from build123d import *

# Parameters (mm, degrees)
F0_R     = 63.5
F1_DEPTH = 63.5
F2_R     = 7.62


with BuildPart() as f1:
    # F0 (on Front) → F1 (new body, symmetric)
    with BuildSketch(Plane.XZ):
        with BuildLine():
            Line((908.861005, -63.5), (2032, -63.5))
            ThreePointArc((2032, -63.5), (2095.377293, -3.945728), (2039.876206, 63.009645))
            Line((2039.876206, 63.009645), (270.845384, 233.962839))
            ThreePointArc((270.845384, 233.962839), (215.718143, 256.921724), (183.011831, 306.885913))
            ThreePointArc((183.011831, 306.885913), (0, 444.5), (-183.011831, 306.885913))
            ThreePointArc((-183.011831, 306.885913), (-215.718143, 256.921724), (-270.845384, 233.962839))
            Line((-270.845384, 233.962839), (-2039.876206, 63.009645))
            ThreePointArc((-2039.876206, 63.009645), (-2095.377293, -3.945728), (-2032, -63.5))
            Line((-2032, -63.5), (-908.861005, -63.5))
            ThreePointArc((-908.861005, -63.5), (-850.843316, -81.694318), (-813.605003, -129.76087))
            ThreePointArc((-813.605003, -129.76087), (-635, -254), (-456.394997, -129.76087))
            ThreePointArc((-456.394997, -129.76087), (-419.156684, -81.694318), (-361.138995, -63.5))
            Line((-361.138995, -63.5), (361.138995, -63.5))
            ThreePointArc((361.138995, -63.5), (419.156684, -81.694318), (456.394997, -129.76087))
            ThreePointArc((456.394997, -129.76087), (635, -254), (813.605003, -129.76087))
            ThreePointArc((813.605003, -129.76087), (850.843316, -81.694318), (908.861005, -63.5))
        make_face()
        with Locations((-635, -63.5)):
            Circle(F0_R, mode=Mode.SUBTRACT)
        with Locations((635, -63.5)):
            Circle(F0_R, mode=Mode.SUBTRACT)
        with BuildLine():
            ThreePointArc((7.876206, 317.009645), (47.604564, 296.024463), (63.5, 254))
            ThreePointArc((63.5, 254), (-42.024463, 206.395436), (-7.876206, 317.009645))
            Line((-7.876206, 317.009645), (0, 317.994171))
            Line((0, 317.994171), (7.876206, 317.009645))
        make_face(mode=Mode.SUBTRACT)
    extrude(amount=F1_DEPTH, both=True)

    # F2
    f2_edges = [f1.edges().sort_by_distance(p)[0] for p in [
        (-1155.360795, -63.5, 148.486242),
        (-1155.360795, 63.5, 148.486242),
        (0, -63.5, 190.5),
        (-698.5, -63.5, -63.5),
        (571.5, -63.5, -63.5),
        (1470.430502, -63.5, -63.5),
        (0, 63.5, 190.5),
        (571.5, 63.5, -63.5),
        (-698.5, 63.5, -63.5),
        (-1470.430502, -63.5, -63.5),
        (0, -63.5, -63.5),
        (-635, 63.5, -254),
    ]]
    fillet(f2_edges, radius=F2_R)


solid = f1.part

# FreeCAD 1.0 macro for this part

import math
import FreeCAD as App
import Part
import Sketcher
from FreeCAD import Vector
Q = App.Units.Quantity


def edges_at(feature, points):
    """Names of the edges that pass closest to the given points."""
    edges = feature.Shape.Edges
    near = lambda p: min(range(len(edges)), key=lambda i: edges[i].distToShape(Part.Vertex(*p))[0])
    return sorted({f"Edge{near(p) + 1}" for p in points})

doc = App.newDocument("Part")
body = doc.addObject("PartDesign::Body", "Body")

sketch1 = body.newObject("Sketcher::SketchObject", "Sketch")
sketch1.AttachmentSupport = (doc.getObject("XZ_Plane"), [""])
sketch1.MapMode = "FlatFace"
sketch1.addGeometry([
    Part.LineSegment(Vector(908.861005, -63.5, 0), Vector(2032, -63.5, 0)),
    Part.ArcOfCircle(Part.Circle(Vector(2032, 0, 0), Vector(0, 0, 1), 63.5), math.radians(-90), math.radians(82.874984)),
    Part.LineSegment(Vector(2039.876206, 63.009645, 0), Vector(270.845384, 233.962839, 0)),
    Part.ArcOfCircle(Part.Circle(Vector(280.61814, 335.091732, 0), Vector(0, 0, 1), 101.599999), math.radians(-163.882009), math.radians(-95.519732)),
    Part.ArcOfCircle(Part.Circle(Vector(0, 254, 0), Vector(0, 0, 1), 190.5), math.radians(16.117992), math.radians(163.882008)),
    Part.ArcOfCircle(Part.Circle(Vector(-280.61814, 335.091732, 0), Vector(0, 0, 1), 101.599999), math.radians(-84.480268), math.radians(-16.117991)),
    Part.LineSegment(Vector(-270.845384, 233.962839, 0), Vector(-2039.876206, 63.009645, 0)),
    Part.ArcOfCircle(Part.Circle(Vector(-2032, 0, 0), Vector(0, 0, 1), 63.5), math.radians(97.125016), math.radians(270)),
    Part.LineSegment(Vector(-2032, -63.5, 0), Vector(-908.861005, -63.5, 0)),
    Part.ArcOfCircle(Part.Circle(Vector(-908.861005, -165.1, 0), Vector(0, 0, 1), 101.6), math.radians(20.354406), math.radians(90)),
    Part.ArcOfCircle(Part.Circle(Vector(-635, -63.5, 0), Vector(0, 0, 1), 190.5), math.radians(-159.645593), math.radians(-20.354407)),
    Part.ArcOfCircle(Part.Circle(Vector(-361.138995, -165.1, 0), Vector(0, 0, 1), 101.6), math.radians(90), math.radians(159.645594)),
    Part.LineSegment(Vector(-361.138995, -63.5, 0), Vector(361.138995, -63.5, 0)),
    Part.ArcOfCircle(Part.Circle(Vector(361.138995, -165.1, 0), Vector(0, 0, 1), 101.6), math.radians(20.354406), math.radians(90)),
    Part.ArcOfCircle(Part.Circle(Vector(635, -63.5, 0), Vector(0, 0, 1), 190.5), math.radians(-159.645593), math.radians(-20.354407)),
    Part.ArcOfCircle(Part.Circle(Vector(908.861005, -165.1, 0), Vector(0, 0, 1), 101.6), math.radians(90), math.radians(159.645594)),
    Part.Circle(Vector(-635, -63.5, 0), Vector(0, 0, 1), 63.5),
    Part.Circle(Vector(635, -63.5, 0), Vector(0, 0, 1), 63.5),
    Part.LineSegment(Vector(0, 317.994171, 0), Vector(7.876206, 317.009645, 0)),
    Part.ArcOfCircle(Part.Circle(Vector(0, 254, 0), Vector(0, 0, 1), 63.5), math.radians(0), math.radians(82.874984)),
    Part.ArcOfCircle(Part.Circle(Vector(0, 254, 0), Vector(0, 0, 1), 63.5), math.radians(97.125017), math.radians(360)),
    Part.LineSegment(Vector(-7.876206, 317.009645, 0), Vector(0, 317.994171, 0)),
], False)
sketch1.addConstraint([
    Sketcher.Constraint("Tangent", 0, 2, 1, 1),
    Sketcher.Constraint("Coincident", 1, 2, 2, 1),
    Sketcher.Constraint("Tangent", 2, 2, 3, 2),
    Sketcher.Constraint("Tangent", 3, 1, 4, 1),
    Sketcher.Constraint("Tangent", 4, 2, 5, 2),
    Sketcher.Constraint("Tangent", 5, 1, 6, 1),
    Sketcher.Constraint("Coincident", 6, 2, 7, 1),
    Sketcher.Constraint("Tangent", 7, 2, 8, 1),
    Sketcher.Constraint("Tangent", 8, 2, 9, 2),
    Sketcher.Constraint("Tangent", 9, 1, 10, 1),
    Sketcher.Constraint("Tangent", 10, 2, 11, 2),
    Sketcher.Constraint("Tangent", 11, 1, 12, 1),
    Sketcher.Constraint("Tangent", 12, 2, 13, 2),
    Sketcher.Constraint("Tangent", 13, 1, 14, 1),
    Sketcher.Constraint("Tangent", 14, 2, 15, 2),
    Sketcher.Constraint("Tangent", 15, 1, 0, 1),
    Sketcher.Constraint("Tangent", 18, 2, 19, 2),
    Sketcher.Constraint("Tangent", 19, 1, 20, 2),
    Sketcher.Constraint("Tangent", 20, 1, 21, 1),
    Sketcher.Constraint("Coincident", 21, 2, 18, 1),
    Sketcher.Constraint("Horizontal", 0),
    Sketcher.Constraint("Horizontal", 8),
    Sketcher.Constraint("Horizontal", 12),
    Sketcher.Constraint("Coincident", 16, 3, 10, 3),
    Sketcher.Constraint("Coincident", 17, 3, 14, 3),
    Sketcher.Constraint("Coincident", 19, 3, 4, 3),
    Sketcher.Constraint("Equal", 3, 5),
    Sketcher.Constraint("Equal", 1, 7),
    Sketcher.Constraint("Equal", 5, 9),
    Sketcher.Constraint("Equal", 4, 10),
    Sketcher.Constraint("Equal", 9, 11),
    Sketcher.Constraint("Equal", 11, 13),
    Sketcher.Constraint("Equal", 10, 14),
    Sketcher.Constraint("Equal", 13, 15),
    Sketcher.Constraint("Equal", 7, 16),
    Sketcher.Constraint("Equal", 16, 17),
    Sketcher.Constraint("Equal", 17, 19),
    Sketcher.Constraint("Equal", 19, 20),
    Sketcher.Constraint("Symmetric", 1, 3, 7, 3, -1, 1),
    Sketcher.Constraint("Symmetric", 3, 3, 5, 3, -2),
    Sketcher.Constraint("Symmetric", 10, 3, 14, 3, -2),
    Sketcher.Constraint("Symmetric", 1, 2, 6, 2, -2),
    Sketcher.Constraint("PointOnObject", 21, 2, -2),
    Sketcher.Constraint("Horizontal", 9, 3, 11, 3),
    Sketcher.Constraint("Horizontal", 17, 3, 0, 2),
    Sketcher.Constraint("Horizontal", 20, 3, 19, 1),
    Sketcher.Constraint("Diameter", 16, Q("5 in")),
    Sketcher.Constraint("Radius", 3, Q("4 in")),
    Sketcher.Constraint("Radius", 4, Q("7.5 in")),
    Sketcher.Constraint("DistanceX", -1, 1, 1, 3, Q("80 in")),
    Sketcher.Constraint("DistanceY", -1, 1, 4, 3, Q("10 in")),
    Sketcher.Constraint("DistanceX", 10, 3, -1, 1, Q("25 in")),
    Sketcher.Constraint("Distance", 18, Q("0.3125 in")),
    Sketcher.Constraint("DistanceX", 15, 3, 1, 2, 1131.015201),
    Sketcher.Constraint("DistanceX", -1, 1, 3, 3, 280.61814),
])
pad1 = body.newObject("PartDesign::Pad", "Pad")
pad1.Profile = sketch1
pad1.Length = Q("5 in")
pad1.Midplane = True
doc.recompute()

fillet = body.newObject("PartDesign::Fillet", "Fillet")
fillet.Base = (pad1, edges_at(pad1, [
    (-1155.361, -63.5, 148.486),
    (-1155.361, 63.5, 148.486),
    (-42.024, -63.5, 206.395),
    (-698.5, -63.5, -63.5),
    (571.5, -63.5, -63.5),
    (1470.431, -63.5, -63.5),
    (-42.024, 63.5, 206.395),
    (571.5, 63.5, -63.5),
    (-698.5, 63.5, -63.5),
    (-1470.431, -63.5, -63.5),
    (0, -63.5, -63.5),
    (-635, 63.5, -254),
]))
fillet.Radius = Q("0.3 in")

doc.recompute()
